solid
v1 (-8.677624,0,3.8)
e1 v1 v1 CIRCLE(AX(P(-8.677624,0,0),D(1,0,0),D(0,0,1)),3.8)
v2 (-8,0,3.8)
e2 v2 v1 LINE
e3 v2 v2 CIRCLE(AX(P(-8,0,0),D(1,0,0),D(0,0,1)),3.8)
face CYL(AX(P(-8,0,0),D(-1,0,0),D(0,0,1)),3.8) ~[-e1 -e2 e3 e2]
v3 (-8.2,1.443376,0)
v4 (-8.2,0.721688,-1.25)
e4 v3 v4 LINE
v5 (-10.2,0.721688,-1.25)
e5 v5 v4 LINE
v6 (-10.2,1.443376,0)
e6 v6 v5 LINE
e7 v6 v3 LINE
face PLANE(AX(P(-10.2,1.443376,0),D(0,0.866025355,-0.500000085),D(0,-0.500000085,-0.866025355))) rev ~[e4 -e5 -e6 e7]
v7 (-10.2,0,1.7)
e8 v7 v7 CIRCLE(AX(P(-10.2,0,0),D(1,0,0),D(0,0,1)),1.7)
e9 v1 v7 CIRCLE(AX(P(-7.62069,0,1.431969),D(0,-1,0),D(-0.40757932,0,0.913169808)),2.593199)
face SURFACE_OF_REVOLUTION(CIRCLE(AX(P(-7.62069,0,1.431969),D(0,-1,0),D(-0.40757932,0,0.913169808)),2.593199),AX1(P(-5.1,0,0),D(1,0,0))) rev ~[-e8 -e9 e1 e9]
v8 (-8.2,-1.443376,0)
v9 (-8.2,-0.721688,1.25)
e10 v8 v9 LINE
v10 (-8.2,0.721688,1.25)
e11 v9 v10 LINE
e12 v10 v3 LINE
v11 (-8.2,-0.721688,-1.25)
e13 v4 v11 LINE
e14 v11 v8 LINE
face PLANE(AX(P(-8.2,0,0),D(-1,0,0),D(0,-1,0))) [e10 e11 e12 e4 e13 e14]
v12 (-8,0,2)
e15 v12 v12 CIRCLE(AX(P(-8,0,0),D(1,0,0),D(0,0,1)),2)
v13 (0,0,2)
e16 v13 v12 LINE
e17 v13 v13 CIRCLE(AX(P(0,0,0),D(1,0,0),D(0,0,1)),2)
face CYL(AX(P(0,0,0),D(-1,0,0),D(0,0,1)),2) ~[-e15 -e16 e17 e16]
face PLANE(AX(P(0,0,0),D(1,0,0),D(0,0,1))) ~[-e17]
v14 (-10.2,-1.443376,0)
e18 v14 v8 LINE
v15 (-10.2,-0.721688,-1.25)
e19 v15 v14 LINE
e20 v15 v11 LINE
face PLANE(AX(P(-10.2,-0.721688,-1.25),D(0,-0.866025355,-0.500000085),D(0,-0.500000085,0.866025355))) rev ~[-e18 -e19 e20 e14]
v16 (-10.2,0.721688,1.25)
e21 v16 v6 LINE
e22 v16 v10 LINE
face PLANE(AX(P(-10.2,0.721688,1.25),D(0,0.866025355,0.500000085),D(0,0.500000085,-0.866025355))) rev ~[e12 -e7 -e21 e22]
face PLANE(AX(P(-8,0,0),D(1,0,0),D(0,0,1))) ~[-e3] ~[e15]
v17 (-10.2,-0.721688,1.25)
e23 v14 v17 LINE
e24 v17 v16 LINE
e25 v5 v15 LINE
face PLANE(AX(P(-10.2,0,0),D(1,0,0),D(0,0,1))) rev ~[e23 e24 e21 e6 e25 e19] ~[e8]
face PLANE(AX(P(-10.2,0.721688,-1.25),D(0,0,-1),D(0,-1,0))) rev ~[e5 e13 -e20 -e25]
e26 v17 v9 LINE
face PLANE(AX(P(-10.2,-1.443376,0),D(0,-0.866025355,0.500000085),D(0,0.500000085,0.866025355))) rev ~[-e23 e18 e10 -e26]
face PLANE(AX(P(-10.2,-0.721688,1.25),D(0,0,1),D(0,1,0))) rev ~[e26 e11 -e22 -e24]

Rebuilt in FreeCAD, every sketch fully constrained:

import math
import FreeCAD as App
import Part
import Sketcher
Q = App.Units.Quantity

doc = App.newDocument("Part")
params = doc.addObject("Spreadsheet::Sheet", "Params")
for row, (alias, value) in enumerate([
    ("sketch1_width", "8 mm"),
    ("sketch1_height", "2 mm"),
    ("sketch1_width2", "10.2 mm"),
    ("sketch1_height2", "1.8 mm"),
    ("sketch1_height3", "1.7 mm"),
    ("revolution_angle", "360 deg"),
    ("pocket1_length", "2 mm"),
], start=1):
    params.set(f"A{row}", alias)
    params.set(f"B{row}", "=" + value)
    params.setAlias(f"B{row}", alias)

body = doc.addObject("PartDesign::Body", "Body")

sketch1 = body.newObject("Sketcher::SketchObject", "Sketch")
sketch1.AttachmentSupport = (doc.getObject("XZ_Plane"), [""])
sketch1.MapMode = "FlatFace"
sketch1.addGeometry([
    Part.LineSegment(App.Vector(-10.2, 0, 0), App.Vector(0, 0, 0)),
    Part.LineSegment(App.Vector(0, 0, 0), App.Vector(0, 2, 0)),
    Part.LineSegment(App.Vector(0, 2, 0), App.Vector(-8, 2, 0)),
    Part.LineSegment(App.Vector(-8, 2, 0), App.Vector(-8, 3.8, 0)),
    Part.LineSegment(App.Vector(-8, 3.8, 0), App.Vector(-8.7, 3.8, 0)),
    Part.ArcOfCircle(Part.Circle(App.Vector(-7.6, 1.4, 0), App.Vector(0, 0, 1), 2.6), math.radians(114), math.radians(174)),
    Part.LineSegment(App.Vector(-10.2, 1.7, 0), App.Vector(-10.2, 0, 0)),
], False)
sketch1.addConstraint([
    Sketcher.Constraint("Coincident", 0, 2, 1, 1),
    Sketcher.Constraint("Coincident", 1, 2, 2, 1),
    Sketcher.Constraint("Coincident", 2, 2, 3, 1),
    Sketcher.Constraint("Coincident", 3, 2, 4, 1),
    Sketcher.Constraint("Coincident", 4, 2, 5, 1),
    Sketcher.Constraint("Coincident", 5, 2, 6, 1),
    Sketcher.Constraint("Coincident", 6, 2, 0, 1),
    Sketcher.Constraint("Horizontal", 0),
    Sketcher.Constraint("Vertical", 1),
    Sketcher.Constraint("Horizontal", 2),
    Sketcher.Constraint("Vertical", 3),
    Sketcher.Constraint("Horizontal", 4),
    Sketcher.Constraint("Vertical", 6),
    Sketcher.Constraint("Coincident", 0, 2, -1, 1),
    Sketcher.Constraint("DistanceX", 2, 2, 2, 1, 8.0),
    Sketcher.Constraint("DistanceY", 1, 1, 1, 2, 2.0),
    Sketcher.Constraint("DistanceX", 0, 1, 0, 2, 10.2),
    Sketcher.Constraint("DistanceY", 3, 1, 3, 2, 1.8),
    Sketcher.Constraint("DistanceY", 6, 2, 6, 1, 1.7),
    Sketcher.Constraint("Radius", 5, 2.593199),
    Sketcher.Constraint("DistanceX", 4, 2, 4, 1, 0.677624),
])
sketch1.setExpression("Constraints[14]", "Params.sketch1_width")
sketch1.setExpression("Constraints[15]", "Params.sketch1_height")
sketch1.setExpression("Constraints[16]", "Params.sketch1_width2")
sketch1.setExpression("Constraints[17]", "Params.sketch1_height2")
sketch1.setExpression("Constraints[18]", "Params.sketch1_height3")
revolution = body.newObject("PartDesign::Revolution", "Revolution")
revolution.Profile = sketch1
revolution.ReferenceAxis = (sketch1, ["H_Axis"])
revolution.setExpression("Angle", "Params.revolution_angle")

sketch2 = body.newObject("Sketcher::SketchObject", "Sketch001")
sketch2.AttachmentSupport = (doc.getObject("YZ_Plane"), [""])
sketch2.MapMode = "FlatFace"
sketch2.AttachmentOffset = App.Placement(App.Vector(0, 0, -10.2), App.Rotation())
sketch2.addGeometry([
    Part.LineSegment(App.Vector(-0.7, 1.2, 0), App.Vector(0.7, 1.2, 0)),
    Part.LineSegment(App.Vector(0.7, 1.2, 0), App.Vector(1.4, 0, 0)),
    Part.LineSegment(App.Vector(1.4, 0, 0), App.Vector(0.7, -1.2, 0)),
    Part.LineSegment(App.Vector(0.7, -1.2, 0), App.Vector(-0.7, -1.2, 0)),
    Part.LineSegment(App.Vector(-0.7, -1.2, 0), App.Vector(-1.4, 0, 0)),
    Part.LineSegment(App.Vector(-1.4, 0, 0), App.Vector(-0.7, 1.2, 0)),
], False)
sketch2.addConstraint([
    Sketcher.Constraint("Coincident", 0, 2, 1, 1),
    Sketcher.Constraint("Coincident", 1, 2, 2, 1),
    Sketcher.Constraint("Coincident", 2, 2, 3, 1),
    Sketcher.Constraint("Coincident", 3, 2, 4, 1),
    Sketcher.Constraint("Coincident", 4, 2, 5, 1),
    Sketcher.Constraint("Coincident", 5, 2, 0, 1),
    Sketcher.Constraint("Horizontal", 0),
    Sketcher.Constraint("Horizontal", 3),
    Sketcher.Constraint("Symmetric", 0, 2, 3, 2, -1, 1),
    Sketcher.Constraint("Symmetric", 1, 2, 4, 2, -1, 1),
    Sketcher.Constraint("PointOnObject", 1, 2, -1),
    Sketcher.Constraint("Parallel", 2, 5),
    Sketcher.Constraint("Vertical", 0, 2, 2, 2),
    Sketcher.Constraint("Angle", 1, Q("-59.999994 deg")),
    Sketcher.Constraint("DistanceY", 2, 2, 0, 2, 2.5),
    Sketcher.Constraint("DistanceX", 0, 1, 0, 2, 1.443376),
])
pocket1 = body.newObject("PartDesign::Pocket", "Pocket")
pocket1.Profile = sketch2
pocket1.setExpression("Length", "Params.pocket1_length")
pocket1.Reversed = True

doc.recompute()
